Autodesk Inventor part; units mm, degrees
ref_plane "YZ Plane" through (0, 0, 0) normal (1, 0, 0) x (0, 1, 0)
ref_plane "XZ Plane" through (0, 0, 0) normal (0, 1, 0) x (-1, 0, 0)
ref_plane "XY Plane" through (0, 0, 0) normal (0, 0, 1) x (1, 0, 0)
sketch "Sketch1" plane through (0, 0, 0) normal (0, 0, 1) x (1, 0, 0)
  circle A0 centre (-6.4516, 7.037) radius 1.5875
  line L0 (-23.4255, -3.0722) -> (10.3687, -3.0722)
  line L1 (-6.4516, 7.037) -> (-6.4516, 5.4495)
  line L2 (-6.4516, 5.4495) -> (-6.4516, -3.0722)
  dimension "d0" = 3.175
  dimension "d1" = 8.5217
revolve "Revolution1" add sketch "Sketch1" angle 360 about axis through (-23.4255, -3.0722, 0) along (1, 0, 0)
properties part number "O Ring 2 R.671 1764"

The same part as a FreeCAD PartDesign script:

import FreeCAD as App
import Part
import Sketcher
Q = App.Units.Quantity

doc = App.newDocument("Part")
body = doc.addObject("PartDesign::Body", "Body")

# Sketch on XY plane
sketch1 = doc.addObject("Sketcher::SketchObject", "Sketch")
body.addObject(sketch1)
sketch1.AttachmentSupport = (doc.XY_Plane, [""])
sketch1.MapMode = "FlatFace"
sketch1.addGeometry(Part.Circle(App.Vector(-6.4516, 7.037, 0), App.Vector(0, 0, 1), 1.5875), False)
sketch1.addGeometry(Part.LineSegment(App.Vector(-6.4516, -3.0722, 0), App.Vector(3.5484, -3.0722, 0)), True)  # axis
sketch1.addConstraint([
    Sketcher.Constraint("Horizontal", 1),
    Sketcher.Constraint("Vertical", 0, 3, 1, 1),
    Sketcher.Constraint("Diameter", 0, Q("0.125 in")),
    Sketcher.Constraint("DistanceX", 1, 1, 1, 2, Q("0.3937 in")),
    Sketcher.Constraint("DistanceX", 0, 3, -1, 1, Q("0.254 in")),
    Sketcher.Constraint("DistanceY", 1, 1, 0, 3, Q("0.398 in")),
    Sketcher.Constraint("DistanceY", -1, 1, 0, 3, 7.037),
])
revolution = doc.addObject("PartDesign::Revolution", "Revolution")
body.addObject(revolution)
revolution.Profile = sketch1
revolution.ReferenceAxis = (sketch1, ["Axis0"])
revolution.Angle = 360

doc.recompute()
